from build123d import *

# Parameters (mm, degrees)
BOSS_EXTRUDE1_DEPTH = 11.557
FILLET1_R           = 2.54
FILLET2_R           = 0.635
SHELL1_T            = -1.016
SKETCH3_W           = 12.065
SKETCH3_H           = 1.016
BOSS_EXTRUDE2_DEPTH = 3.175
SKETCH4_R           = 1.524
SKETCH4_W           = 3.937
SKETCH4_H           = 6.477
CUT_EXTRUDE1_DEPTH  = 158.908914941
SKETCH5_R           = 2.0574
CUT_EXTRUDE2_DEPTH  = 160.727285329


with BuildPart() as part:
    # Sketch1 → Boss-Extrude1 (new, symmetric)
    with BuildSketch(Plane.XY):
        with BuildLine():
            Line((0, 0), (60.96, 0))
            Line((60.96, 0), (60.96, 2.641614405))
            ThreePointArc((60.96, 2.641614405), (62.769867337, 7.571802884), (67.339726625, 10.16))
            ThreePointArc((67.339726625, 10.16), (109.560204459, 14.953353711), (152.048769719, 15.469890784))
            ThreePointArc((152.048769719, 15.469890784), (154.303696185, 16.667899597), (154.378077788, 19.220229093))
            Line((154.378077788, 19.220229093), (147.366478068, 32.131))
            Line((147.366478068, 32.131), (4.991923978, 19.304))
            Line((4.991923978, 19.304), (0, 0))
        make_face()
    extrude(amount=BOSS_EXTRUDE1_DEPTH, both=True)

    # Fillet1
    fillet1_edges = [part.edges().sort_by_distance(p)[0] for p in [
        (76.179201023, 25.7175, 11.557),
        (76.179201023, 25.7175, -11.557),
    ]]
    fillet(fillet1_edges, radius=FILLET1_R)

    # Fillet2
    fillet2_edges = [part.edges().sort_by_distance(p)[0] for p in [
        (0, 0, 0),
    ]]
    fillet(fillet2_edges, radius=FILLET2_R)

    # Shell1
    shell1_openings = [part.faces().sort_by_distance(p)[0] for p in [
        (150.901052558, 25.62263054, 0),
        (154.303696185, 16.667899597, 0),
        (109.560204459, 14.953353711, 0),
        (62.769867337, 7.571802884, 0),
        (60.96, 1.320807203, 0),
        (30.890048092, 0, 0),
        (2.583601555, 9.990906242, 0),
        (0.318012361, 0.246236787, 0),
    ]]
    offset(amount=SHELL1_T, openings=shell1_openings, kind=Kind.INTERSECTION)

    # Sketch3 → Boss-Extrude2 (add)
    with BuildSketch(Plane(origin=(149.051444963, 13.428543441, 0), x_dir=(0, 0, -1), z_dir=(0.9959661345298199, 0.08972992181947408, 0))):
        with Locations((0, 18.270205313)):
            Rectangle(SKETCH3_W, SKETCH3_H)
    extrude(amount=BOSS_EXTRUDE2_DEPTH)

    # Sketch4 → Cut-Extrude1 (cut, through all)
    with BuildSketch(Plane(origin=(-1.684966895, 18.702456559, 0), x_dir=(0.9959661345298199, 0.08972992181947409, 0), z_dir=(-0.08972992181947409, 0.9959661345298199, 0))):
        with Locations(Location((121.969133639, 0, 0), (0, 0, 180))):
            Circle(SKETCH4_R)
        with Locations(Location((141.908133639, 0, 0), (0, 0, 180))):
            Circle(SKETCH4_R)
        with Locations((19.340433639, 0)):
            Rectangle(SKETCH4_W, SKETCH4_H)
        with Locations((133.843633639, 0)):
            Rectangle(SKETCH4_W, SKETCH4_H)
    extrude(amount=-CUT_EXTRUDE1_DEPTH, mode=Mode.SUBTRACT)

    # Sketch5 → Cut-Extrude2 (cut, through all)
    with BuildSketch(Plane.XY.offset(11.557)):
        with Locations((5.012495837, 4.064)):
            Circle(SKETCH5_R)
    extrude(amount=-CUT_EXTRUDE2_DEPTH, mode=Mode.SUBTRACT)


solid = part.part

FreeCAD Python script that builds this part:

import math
import FreeCAD as App
import Part
import Sketcher
Q = App.Units.Quantity


def edges_at(feature, points):
    """Names of the edges that pass closest to the given points."""
    edges = feature.Shape.Edges
    near = lambda p: min(range(len(edges)), key=lambda i: edges[i].distToShape(Part.Vertex(*p))[0])
    return sorted({f"Edge{near(p) + 1}" for p in points})


def faces_at(feature, points):
    """Names of the faces that lie closest to the given points."""
    faces = feature.Shape.Faces
    near = lambda p: min(range(len(faces)), key=lambda i: faces[i].distToShape(Part.Vertex(*p))[0])
    return sorted({f"Face{near(p) + 1}" for p in points})

doc = App.newDocument("Part")
body = doc.addObject("PartDesign::Body", "Body")

# Sketch on XY plane
sketch1 = body.newObject("Sketcher::SketchObject", "Sketch")
sketch1.AttachmentSupport = (doc.getObject("XY_Plane"), [""])
sketch1.MapMode = "FlatFace"
sketch1.addGeometry(Part.LineSegment(App.Vector(0, 0, 0), App.Vector(61, 0, 0)), False)
sketch1.addGeometry(Part.LineSegment(App.Vector(61, 0, 0), App.Vector(61, 2.6, 0)), False)
sketch1.addGeometry(Part.ArcOfCircle(Part.Circle(App.Vector(68.6, 2.6, 0), App.Vector(0, 0, 1), 7.6), math.radians(99), math.radians(180)), False)
sketch1.addGeometry(Part.ArcOfCircle(Part.Circle(App.Vector(135.9, -405.6, 0), App.Vector(0, 0, 1), 421.3), math.radians(87.81), math.radians(99.37)), False)
sketch1.addGeometry(Part.ArcOfCircle(Part.Circle(App.Vector(152.1, 18, 0), App.Vector(0, 0, 1), 2.5), math.radians(-92), math.radians(29)), False)
sketch1.addGeometry(Part.LineSegment(App.Vector(154.4, 19.2, 0), App.Vector(147.4, 32.1, 0)), False)
sketch1.addGeometry(Part.LineSegment(App.Vector(147.4, 32.1, 0), App.Vector(5, 19.3, 0)), False)
sketch1.addGeometry(Part.LineSegment(App.Vector(5, 19.3, 0), App.Vector(0, 0, 0)), False)
sketch1.addConstraint(Sketcher.Constraint("Coincident", 0, 2, 1, 1))
sketch1.addConstraint(Sketcher.Constraint("Tangent", 1, 2, 2, 2))
sketch1.addConstraint(Sketcher.Constraint("Tangent", 2, 1, 3, 2))
sketch1.addConstraint(Sketcher.Constraint("Tangent", 3, 1, 4, 1))
sketch1.addConstraint(Sketcher.Constraint("Tangent", 4, 2, 5, 1))
sketch1.addConstraint(Sketcher.Constraint("Coincident", 5, 2, 6, 1))
sketch1.addConstraint(Sketcher.Constraint("Coincident", 6, 2, 7, 1))
sketch1.addConstraint(Sketcher.Constraint("Coincident", 7, 2, 0, 1))
sketch1.addConstraint(Sketcher.Constraint("Horizontal", 0))
sketch1.addConstraint(Sketcher.Constraint("Vertical", 1))
sketch1.addConstraint(Sketcher.Constraint("Coincident", 7, 2, -1, 1))
sketch1.addConstraint(Sketcher.Constraint("Radius", 2, Q("0.3 in")))
sketch1.addConstraint(Sketcher.Constraint("Radius", 4, Q("0.1 in")))
sketch1.addConstraint(Sketcher.Constraint("DistanceX", 0, 1, 0, 2, Q("2.4 in")))
sketch1.addConstraint(Sketcher.Constraint("DistanceY", -1, 1, 2, 1, Q("0.4 in")))
sketch1.addConstraint(Sketcher.Constraint("DistanceX", -1, 1, 4, 3, Q("5.99 in")))
sketch1.addConstraint(Sketcher.Constraint("DistanceY", -1, 1, 6, 2, Q("0.76 in")))
sketch1.addConstraint(Sketcher.Constraint("Distance", 6, Q("5.628 in")))
sketch1.addConstraint(Sketcher.Constraint("Distance", 7, Q("0.785 in")))
sketch1.addConstraint(Sketcher.Constraint("DistanceY", -1, 1, 5, 2, Q("1.265 in")))
sketch1.addConstraint(Sketcher.Constraint("Radius", 3, 421.343332))
sketch1.addConstraint(Sketcher.Constraint("DistanceX", -1, 1, 3, 3, 135.919899))
pad1 = body.newObject("PartDesign::Pad", "Pad")
pad1.Profile = sketch1
pad1.Length = Q("0.91 in")
pad1.Midplane = True
doc.recompute()

fillet = body.newObject("PartDesign::Fillet", "Fillet")
fillet.Base = (pad1, edges_at(pad1, [(76.179, 25.718, 11.557), (76.179, 25.718, -11.557)]))
fillet.Radius = Q("0.1 in")
doc.recompute()

fillet2 = body.newObject("PartDesign::Fillet", "Fillet001")
fillet2.Base = (fillet, edges_at(fillet, [(0, 0, 0)]))
fillet2.Radius = Q("0.025 in")
doc.recompute()

thickness = body.newObject("PartDesign::Thickness", "Thickness")
thickness.Base = (fillet2, faces_at(fillet2, [
    (150.872, 25.676, 0),
    (154.304, 16.668, 0),
    (109.56, 14.953, 0),
    (62.77, 7.572, 0),
    (60.96, 1.321, 0),
    (30.89, 0, 0),
    (2.599, 10.049, 0),
    (0.318, 0.246, 0),
]))
thickness.Value = Q("0.04 in")
thickness.Reversed = True
thickness.Join = "Intersection"

# Sketch on an angled plane
sketch2 = body.newObject("Sketcher::SketchObject", "Sketch001")
sketch2.Placement = App.Placement(App.Vector(149.051445, 13.428543, 0), App.Rotation(App.Vector(0, 0, -1), App.Vector(-0.089729922, 0.995966135, 0), App.Vector(0.995966135, 0.089729922, 0), "ZXY"))
sketch2.addGeometry(Part.LineSegment(App.Vector(-6, 18.8, 0), App.Vector(-6, 17.8, 0)), False)
sketch2.addGeometry(Part.LineSegment(App.Vector(-6, 17.8, 0), App.Vector(6, 17.8, 0)), False)
sketch2.addGeometry(Part.LineSegment(App.Vector(6, 17.8, 0), App.Vector(6, 18.8, 0)), False)
sketch2.addGeometry(Part.LineSegment(App.Vector(6, 18.8, 0), App.Vector(-6, 18.8, 0)), False)
sketch2.addConstraint(Sketcher.Constraint("Coincident", 0, 2, 1, 1))
sketch2.addConstraint(Sketcher.Constraint("Coincident", 1, 2, 2, 1))
sketch2.addConstraint(Sketcher.Constraint("Coincident", 2, 2, 3, 1))
sketch2.addConstraint(Sketcher.Constraint("Coincident", 3, 2, 0, 1))
sketch2.addConstraint(Sketcher.Constraint("Vertical", 0))
sketch2.addConstraint(Sketcher.Constraint("Horizontal", 1))
sketch2.addConstraint(Sketcher.Constraint("Vertical", 2))
sketch2.addConstraint(Sketcher.Constraint("Horizontal", 3))
sketch2.addConstraint(Sketcher.Constraint("DistanceY", 0, 2, 0, 1, Q("0.04 in")))
sketch2.addConstraint(Sketcher.Constraint("DistanceX", 1, 1, 1, 2, Q("0.475 in")))
sketch2.addConstraint(Sketcher.Constraint("DistanceX", 0, 2, -1, 1, Q("0.2375 in")))
sketch2.addConstraint(Sketcher.Constraint("DistanceY", -1, 1, 0, 2, 17.762205))
pad2 = body.newObject("PartDesign::Pad", "Pad001")
pad2.Profile = sketch2
pad2.Length = Q("0.125 in")

# Sketch on an angled plane
sketch3 = body.newObject("Sketcher::SketchObject", "Sketch002")
sketch3.Placement = App.Placement(App.Vector(-1.684967, 18.702457, 0), App.Rotation(App.Vector(0.995966135, 0.089729922, 0), App.Vector(0, 0, -1.000000001), App.Vector(-0.089729922, 0.995966135, 0), "ZXY"))
sketch3.addGeometry(Part.Circle(App.Vector(122, 0, 0), App.Vector(0, 0, 1), 1.5), False)
sketch3.addGeometry(Part.Circle(App.Vector(141.9, 0, 0), App.Vector(0, 0, 1), 1.5), False)
sketch3.addGeometry(Part.LineSegment(App.Vector(17.4, 3.2, 0), App.Vector(17.4, -3.2, 0)), False)
sketch3.addGeometry(Part.LineSegment(App.Vector(17.4, -3.2, 0), App.Vector(21.3, -3.2, 0)), False)
sketch3.addGeometry(Part.LineSegment(App.Vector(21.3, -3.2, 0), App.Vector(21.3, 3.2, 0)), False)
sketch3.addGeometry(Part.LineSegment(App.Vector(21.3, 3.2, 0), App.Vector(17.4, 3.2, 0)), False)
sketch3.addGeometry(Part.LineSegment(App.Vector(131.9, 3.2, 0), App.Vector(131.9, -3.2, 0)), False)
sketch3.addGeometry(Part.LineSegment(App.Vector(131.9, -3.2, 0), App.Vector(135.8, -3.2, 0)), False)
sketch3.addGeometry(Part.LineSegment(App.Vector(135.8, -3.2, 0), App.Vector(135.8, 3.2, 0)), False)
sketch3.addGeometry(Part.LineSegment(App.Vector(135.8, 3.2, 0), App.Vector(131.9, 3.2, 0)), False)
sketch3.addConstraint(Sketcher.Constraint("Coincident", 2, 2, 3, 1))
sketch3.addConstraint(Sketcher.Constraint("Coincident", 3, 2, 4, 1))
sketch3.addConstraint(Sketcher.Constraint("Coincident", 4, 2, 5, 1))
sketch3.addConstraint(Sketcher.Constraint("Coincident", 5, 2, 2, 1))
sketch3.addConstraint(Sketcher.Constraint("Coincident", 6, 2, 7, 1))
sketch3.addConstraint(Sketcher.Constraint("Coincident", 7, 2, 8, 1))
sketch3.addConstraint(Sketcher.Constraint("Coincident", 8, 2, 9, 1))
sketch3.addConstraint(Sketcher.Constraint("Coincident", 9, 2, 6, 1))
sketch3.addConstraint(Sketcher.Constraint("Vertical", 2))
sketch3.addConstraint(Sketcher.Constraint("Horizontal", 3))
sketch3.addConstraint(Sketcher.Constraint("Vertical", 4))
sketch3.addConstraint(Sketcher.Constraint("Horizontal", 5))
sketch3.addConstraint(Sketcher.Constraint("Vertical", 6))
sketch3.addConstraint(Sketcher.Constraint("Horizontal", 7))
sketch3.addConstraint(Sketcher.Constraint("Vertical", 8))
sketch3.addConstraint(Sketcher.Constraint("Horizontal", 9))
sketch3.addConstraint(Sketcher.Constraint("Equal", 0, 1))
sketch3.addConstraint(Sketcher.Constraint("PointOnObject", 0, 3, -1))
sketch3.addConstraint(Sketcher.Constraint("PointOnObject", 1, 3, -1))
sketch3.addConstraint(Sketcher.Constraint("Horizontal", 3, 2, 6, 2))
sketch3.addConstraint(Sketcher.Constraint("Horizontal", 5, 2, 8, 2))
sketch3.addConstraint(Sketcher.Constraint("Equal", 5, 7))
sketch3.addConstraint(Sketcher.Constraint("Diameter", 0, Q("0.12 in")))
sketch3.addConstraint(Sketcher.Constraint("DistanceX", 3, 1, 3, 2, Q("0.155 in")))
sketch3.addConstraint(Sketcher.Constraint("DistanceY", 2, 2, 2, 1, Q("0.255 in")))
sketch3.addConstraint(Sketcher.Constraint("DistanceX", 0, 3, 6, 2, Q("0.39 in")))
sketch3.addConstraint(Sketcher.Constraint("DistanceX", 7, 2, 1, 3, Q("0.24 in")))
sketch3.addConstraint(Sketcher.Constraint("DistanceX", 2, 2, 0, 3, Q("4.118 in")))
sketch3.addConstraint(Sketcher.Constraint("DistanceY", 2, 2, -1, 1, Q("0.1275 in")))
sketch3.addConstraint(Sketcher.Constraint("DistanceX", -1, 1, 0, 3, 121.969134))
pocket1 = body.newObject("PartDesign::Pocket", "Pocket")
pocket1.Profile = sketch3
pocket1.Type = "ThroughAll"

# Sketch on XY plane
sketch4 = body.newObject("Sketcher::SketchObject", "Sketch003")
sketch4.AttachmentSupport = (doc.getObject("XY_Plane"), [""])
sketch4.MapMode = "FlatFace"
sketch4.AttachmentOffset = App.Placement(App.Vector(0, 0, 0.455 * 25.4), App.Rotation())
sketch4.addGeometry(Part.Circle(App.Vector(5, 4.1, 0), App.Vector(0, 0, 1), 2.1), False)
sketch4.addConstraint(Sketcher.Constraint("Diameter", 0, Q("0.162 in")))
sketch4.addConstraint(Sketcher.Constraint("DistanceY", -1, 1, 0, 3, Q("0.16 in")))
sketch4.addConstraint(Sketcher.Constraint("DistanceX", -1, 1, 0, 3, 5.012496))
pocket2 = body.newObject("PartDesign::Pocket", "Pocket001")
pocket2.Profile = sketch4
pocket2.Type = "ThroughAll"

doc.recompute()
